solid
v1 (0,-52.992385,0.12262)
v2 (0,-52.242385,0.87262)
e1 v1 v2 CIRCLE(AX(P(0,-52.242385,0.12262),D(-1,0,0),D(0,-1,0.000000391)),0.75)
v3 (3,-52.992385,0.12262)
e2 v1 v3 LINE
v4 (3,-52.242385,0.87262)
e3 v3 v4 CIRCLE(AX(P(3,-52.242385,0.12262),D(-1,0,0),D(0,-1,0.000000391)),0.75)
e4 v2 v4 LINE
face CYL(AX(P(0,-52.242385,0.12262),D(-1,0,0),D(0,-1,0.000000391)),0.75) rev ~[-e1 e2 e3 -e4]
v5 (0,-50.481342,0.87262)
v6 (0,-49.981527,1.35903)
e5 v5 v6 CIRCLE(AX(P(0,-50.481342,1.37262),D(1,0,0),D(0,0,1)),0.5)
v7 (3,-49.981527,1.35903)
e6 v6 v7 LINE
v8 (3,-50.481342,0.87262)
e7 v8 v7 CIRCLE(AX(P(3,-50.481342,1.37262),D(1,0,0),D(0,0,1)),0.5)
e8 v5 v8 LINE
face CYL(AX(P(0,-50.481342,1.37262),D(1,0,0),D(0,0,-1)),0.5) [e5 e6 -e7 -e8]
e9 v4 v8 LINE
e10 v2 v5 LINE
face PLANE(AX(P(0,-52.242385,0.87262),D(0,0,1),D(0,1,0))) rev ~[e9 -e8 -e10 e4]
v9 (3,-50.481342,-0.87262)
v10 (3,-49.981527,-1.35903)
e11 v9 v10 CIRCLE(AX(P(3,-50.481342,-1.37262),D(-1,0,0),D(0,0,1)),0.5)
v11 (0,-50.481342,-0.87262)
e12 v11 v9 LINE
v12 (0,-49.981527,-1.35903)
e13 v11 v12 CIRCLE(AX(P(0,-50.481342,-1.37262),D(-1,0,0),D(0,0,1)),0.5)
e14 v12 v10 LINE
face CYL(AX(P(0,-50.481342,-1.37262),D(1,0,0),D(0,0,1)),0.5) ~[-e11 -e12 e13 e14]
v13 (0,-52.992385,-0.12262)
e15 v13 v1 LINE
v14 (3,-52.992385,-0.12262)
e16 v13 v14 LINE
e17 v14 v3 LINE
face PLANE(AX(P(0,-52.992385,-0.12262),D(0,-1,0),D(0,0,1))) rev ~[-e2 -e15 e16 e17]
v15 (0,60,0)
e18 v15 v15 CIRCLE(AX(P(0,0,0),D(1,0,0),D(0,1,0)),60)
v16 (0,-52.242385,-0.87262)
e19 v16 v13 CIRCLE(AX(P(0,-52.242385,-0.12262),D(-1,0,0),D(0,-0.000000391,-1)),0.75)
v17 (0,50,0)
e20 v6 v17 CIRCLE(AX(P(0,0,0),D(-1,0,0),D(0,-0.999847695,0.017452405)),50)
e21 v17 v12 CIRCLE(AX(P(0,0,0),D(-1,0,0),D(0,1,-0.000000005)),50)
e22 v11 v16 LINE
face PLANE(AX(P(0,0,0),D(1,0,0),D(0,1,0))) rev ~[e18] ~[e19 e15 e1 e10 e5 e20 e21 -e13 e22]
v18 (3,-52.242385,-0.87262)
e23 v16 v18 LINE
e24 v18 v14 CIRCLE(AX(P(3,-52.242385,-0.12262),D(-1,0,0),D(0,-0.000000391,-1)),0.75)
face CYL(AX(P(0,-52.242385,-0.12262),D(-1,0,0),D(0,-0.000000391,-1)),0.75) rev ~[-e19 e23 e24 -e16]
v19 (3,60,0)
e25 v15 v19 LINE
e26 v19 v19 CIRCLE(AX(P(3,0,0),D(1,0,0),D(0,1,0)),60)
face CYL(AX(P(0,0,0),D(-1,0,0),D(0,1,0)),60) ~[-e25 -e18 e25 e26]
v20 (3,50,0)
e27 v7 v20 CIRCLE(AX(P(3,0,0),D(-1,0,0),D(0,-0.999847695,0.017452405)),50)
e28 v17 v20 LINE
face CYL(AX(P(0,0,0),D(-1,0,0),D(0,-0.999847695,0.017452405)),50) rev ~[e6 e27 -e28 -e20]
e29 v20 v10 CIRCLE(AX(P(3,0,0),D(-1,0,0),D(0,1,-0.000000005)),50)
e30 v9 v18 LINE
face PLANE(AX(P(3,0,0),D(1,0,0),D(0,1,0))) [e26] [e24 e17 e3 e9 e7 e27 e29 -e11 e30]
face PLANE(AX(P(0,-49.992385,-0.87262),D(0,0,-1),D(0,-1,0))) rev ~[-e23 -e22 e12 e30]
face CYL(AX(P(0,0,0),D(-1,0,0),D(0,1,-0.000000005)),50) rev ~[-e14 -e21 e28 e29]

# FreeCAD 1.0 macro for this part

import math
import FreeCAD as App
import Part
import Sketcher

V = App.Vector
Q = App.Units.Quantity


def edges_at(feature, points):
    """Names of the edges that pass closest to the given points."""
    edges = feature.Shape.Edges
    near = lambda p: min(range(len(edges)), key=lambda i: edges[i].distToShape(Part.Vertex(*p))[0])
    return sorted({f"Edge{near(p) + 1}" for p in points})

doc = App.newDocument("Part")
body = doc.addObject("PartDesign::Body", "Body")

sketch1 = doc.addObject("Sketcher::SketchObject", "Sketch")
body.addObject(sketch1)
sketch1.AttachmentSupport = (doc.YZ_Plane, [""])
sketch1.MapMode = "FlatFace"
sketch1.addGeometry([
    Part.Circle(V(0, 0, 0), V(0, 0, 1), 60),
    Part.LineSegment(V(-52.24, 0.87, 0), V(-49.99, 0.87, 0)),
    Part.ArcOfCircle(Part.Circle(V(0, 0, 0), V(0, 0, 1), 50), math.radians(0), math.radians(179)),
    Part.ArcOfCircle(Part.Circle(V(0, 0, 0), V(0, 0, 1), 50), math.radians(-179), math.radians(0)),
    Part.LineSegment(V(-49.99, -0.87, 0), V(-52.24, -0.87, 0)),
    Part.ArcOfCircle(Part.Circle(V(-52.24, -0.12, 0), V(0, 0, 1), 0.75), math.radians(-180), math.radians(-90)),
    Part.LineSegment(V(-52.99, -0.12, 0), V(-52.99, 0.12, 0)),
    Part.ArcOfCircle(Part.Circle(V(-52.24, 0.12, 0), V(0, 0, 1), 0.75), math.radians(90), math.radians(180)),
], False)
sketch1.addConstraint([
    Sketcher.Constraint("Coincident", 1, 2, 2, 2),
    Sketcher.Constraint("Tangent", 2, 1, 3, 2),
    Sketcher.Constraint("Coincident", 3, 1, 4, 1),
    Sketcher.Constraint("Tangent", 4, 2, 5, 2),
    Sketcher.Constraint("Tangent", 5, 1, 6, 1),
    Sketcher.Constraint("Tangent", 6, 2, 7, 2),
    Sketcher.Constraint("Tangent", 7, 1, 1, 1),
    Sketcher.Constraint("Horizontal", 1),
    Sketcher.Constraint("Horizontal", 4),
    Sketcher.Constraint("Vertical", 6),
    Sketcher.Constraint("Coincident", 0, 3, -1, 1),
    Sketcher.Constraint("Coincident", 2, 3, -1, 1),
    Sketcher.Constraint("Equal", 2, 3),
    Sketcher.Constraint("Equal", 5, 7),
    Sketcher.Constraint("PointOnObject", 2, 1, -1),
    Sketcher.Constraint("Vertical", 1, 2, 3, 1),
    Sketcher.Constraint("Diameter", 0, Q("120 mm")),
    Sketcher.Constraint("Radius", 2, Q("50 mm")),
    Sketcher.Constraint("Radius", 5, Q("0.75 mm")),
    Sketcher.Constraint("DistanceX", 5, 1, 3, 1, Q("3 mm")),
    Sketcher.Constraint("DistanceY", 6, 1, 6, 2, Q("0.24524 mm")),
])
pad1 = doc.addObject("PartDesign::Pad", "Pad")
body.addObject(pad1)
pad1.Profile = sketch1
pad1.Length = 3
doc.recompute()

fillet = doc.addObject("PartDesign::Fillet", "Fillet")
body.addObject(fillet)
fillet.Base = (pad1, edges_at(pad1, [(1.5, -49.992, 0.873), (1.5, -49.992, -0.873)]))
fillet.Radius = 0.5

doc.recompute()
